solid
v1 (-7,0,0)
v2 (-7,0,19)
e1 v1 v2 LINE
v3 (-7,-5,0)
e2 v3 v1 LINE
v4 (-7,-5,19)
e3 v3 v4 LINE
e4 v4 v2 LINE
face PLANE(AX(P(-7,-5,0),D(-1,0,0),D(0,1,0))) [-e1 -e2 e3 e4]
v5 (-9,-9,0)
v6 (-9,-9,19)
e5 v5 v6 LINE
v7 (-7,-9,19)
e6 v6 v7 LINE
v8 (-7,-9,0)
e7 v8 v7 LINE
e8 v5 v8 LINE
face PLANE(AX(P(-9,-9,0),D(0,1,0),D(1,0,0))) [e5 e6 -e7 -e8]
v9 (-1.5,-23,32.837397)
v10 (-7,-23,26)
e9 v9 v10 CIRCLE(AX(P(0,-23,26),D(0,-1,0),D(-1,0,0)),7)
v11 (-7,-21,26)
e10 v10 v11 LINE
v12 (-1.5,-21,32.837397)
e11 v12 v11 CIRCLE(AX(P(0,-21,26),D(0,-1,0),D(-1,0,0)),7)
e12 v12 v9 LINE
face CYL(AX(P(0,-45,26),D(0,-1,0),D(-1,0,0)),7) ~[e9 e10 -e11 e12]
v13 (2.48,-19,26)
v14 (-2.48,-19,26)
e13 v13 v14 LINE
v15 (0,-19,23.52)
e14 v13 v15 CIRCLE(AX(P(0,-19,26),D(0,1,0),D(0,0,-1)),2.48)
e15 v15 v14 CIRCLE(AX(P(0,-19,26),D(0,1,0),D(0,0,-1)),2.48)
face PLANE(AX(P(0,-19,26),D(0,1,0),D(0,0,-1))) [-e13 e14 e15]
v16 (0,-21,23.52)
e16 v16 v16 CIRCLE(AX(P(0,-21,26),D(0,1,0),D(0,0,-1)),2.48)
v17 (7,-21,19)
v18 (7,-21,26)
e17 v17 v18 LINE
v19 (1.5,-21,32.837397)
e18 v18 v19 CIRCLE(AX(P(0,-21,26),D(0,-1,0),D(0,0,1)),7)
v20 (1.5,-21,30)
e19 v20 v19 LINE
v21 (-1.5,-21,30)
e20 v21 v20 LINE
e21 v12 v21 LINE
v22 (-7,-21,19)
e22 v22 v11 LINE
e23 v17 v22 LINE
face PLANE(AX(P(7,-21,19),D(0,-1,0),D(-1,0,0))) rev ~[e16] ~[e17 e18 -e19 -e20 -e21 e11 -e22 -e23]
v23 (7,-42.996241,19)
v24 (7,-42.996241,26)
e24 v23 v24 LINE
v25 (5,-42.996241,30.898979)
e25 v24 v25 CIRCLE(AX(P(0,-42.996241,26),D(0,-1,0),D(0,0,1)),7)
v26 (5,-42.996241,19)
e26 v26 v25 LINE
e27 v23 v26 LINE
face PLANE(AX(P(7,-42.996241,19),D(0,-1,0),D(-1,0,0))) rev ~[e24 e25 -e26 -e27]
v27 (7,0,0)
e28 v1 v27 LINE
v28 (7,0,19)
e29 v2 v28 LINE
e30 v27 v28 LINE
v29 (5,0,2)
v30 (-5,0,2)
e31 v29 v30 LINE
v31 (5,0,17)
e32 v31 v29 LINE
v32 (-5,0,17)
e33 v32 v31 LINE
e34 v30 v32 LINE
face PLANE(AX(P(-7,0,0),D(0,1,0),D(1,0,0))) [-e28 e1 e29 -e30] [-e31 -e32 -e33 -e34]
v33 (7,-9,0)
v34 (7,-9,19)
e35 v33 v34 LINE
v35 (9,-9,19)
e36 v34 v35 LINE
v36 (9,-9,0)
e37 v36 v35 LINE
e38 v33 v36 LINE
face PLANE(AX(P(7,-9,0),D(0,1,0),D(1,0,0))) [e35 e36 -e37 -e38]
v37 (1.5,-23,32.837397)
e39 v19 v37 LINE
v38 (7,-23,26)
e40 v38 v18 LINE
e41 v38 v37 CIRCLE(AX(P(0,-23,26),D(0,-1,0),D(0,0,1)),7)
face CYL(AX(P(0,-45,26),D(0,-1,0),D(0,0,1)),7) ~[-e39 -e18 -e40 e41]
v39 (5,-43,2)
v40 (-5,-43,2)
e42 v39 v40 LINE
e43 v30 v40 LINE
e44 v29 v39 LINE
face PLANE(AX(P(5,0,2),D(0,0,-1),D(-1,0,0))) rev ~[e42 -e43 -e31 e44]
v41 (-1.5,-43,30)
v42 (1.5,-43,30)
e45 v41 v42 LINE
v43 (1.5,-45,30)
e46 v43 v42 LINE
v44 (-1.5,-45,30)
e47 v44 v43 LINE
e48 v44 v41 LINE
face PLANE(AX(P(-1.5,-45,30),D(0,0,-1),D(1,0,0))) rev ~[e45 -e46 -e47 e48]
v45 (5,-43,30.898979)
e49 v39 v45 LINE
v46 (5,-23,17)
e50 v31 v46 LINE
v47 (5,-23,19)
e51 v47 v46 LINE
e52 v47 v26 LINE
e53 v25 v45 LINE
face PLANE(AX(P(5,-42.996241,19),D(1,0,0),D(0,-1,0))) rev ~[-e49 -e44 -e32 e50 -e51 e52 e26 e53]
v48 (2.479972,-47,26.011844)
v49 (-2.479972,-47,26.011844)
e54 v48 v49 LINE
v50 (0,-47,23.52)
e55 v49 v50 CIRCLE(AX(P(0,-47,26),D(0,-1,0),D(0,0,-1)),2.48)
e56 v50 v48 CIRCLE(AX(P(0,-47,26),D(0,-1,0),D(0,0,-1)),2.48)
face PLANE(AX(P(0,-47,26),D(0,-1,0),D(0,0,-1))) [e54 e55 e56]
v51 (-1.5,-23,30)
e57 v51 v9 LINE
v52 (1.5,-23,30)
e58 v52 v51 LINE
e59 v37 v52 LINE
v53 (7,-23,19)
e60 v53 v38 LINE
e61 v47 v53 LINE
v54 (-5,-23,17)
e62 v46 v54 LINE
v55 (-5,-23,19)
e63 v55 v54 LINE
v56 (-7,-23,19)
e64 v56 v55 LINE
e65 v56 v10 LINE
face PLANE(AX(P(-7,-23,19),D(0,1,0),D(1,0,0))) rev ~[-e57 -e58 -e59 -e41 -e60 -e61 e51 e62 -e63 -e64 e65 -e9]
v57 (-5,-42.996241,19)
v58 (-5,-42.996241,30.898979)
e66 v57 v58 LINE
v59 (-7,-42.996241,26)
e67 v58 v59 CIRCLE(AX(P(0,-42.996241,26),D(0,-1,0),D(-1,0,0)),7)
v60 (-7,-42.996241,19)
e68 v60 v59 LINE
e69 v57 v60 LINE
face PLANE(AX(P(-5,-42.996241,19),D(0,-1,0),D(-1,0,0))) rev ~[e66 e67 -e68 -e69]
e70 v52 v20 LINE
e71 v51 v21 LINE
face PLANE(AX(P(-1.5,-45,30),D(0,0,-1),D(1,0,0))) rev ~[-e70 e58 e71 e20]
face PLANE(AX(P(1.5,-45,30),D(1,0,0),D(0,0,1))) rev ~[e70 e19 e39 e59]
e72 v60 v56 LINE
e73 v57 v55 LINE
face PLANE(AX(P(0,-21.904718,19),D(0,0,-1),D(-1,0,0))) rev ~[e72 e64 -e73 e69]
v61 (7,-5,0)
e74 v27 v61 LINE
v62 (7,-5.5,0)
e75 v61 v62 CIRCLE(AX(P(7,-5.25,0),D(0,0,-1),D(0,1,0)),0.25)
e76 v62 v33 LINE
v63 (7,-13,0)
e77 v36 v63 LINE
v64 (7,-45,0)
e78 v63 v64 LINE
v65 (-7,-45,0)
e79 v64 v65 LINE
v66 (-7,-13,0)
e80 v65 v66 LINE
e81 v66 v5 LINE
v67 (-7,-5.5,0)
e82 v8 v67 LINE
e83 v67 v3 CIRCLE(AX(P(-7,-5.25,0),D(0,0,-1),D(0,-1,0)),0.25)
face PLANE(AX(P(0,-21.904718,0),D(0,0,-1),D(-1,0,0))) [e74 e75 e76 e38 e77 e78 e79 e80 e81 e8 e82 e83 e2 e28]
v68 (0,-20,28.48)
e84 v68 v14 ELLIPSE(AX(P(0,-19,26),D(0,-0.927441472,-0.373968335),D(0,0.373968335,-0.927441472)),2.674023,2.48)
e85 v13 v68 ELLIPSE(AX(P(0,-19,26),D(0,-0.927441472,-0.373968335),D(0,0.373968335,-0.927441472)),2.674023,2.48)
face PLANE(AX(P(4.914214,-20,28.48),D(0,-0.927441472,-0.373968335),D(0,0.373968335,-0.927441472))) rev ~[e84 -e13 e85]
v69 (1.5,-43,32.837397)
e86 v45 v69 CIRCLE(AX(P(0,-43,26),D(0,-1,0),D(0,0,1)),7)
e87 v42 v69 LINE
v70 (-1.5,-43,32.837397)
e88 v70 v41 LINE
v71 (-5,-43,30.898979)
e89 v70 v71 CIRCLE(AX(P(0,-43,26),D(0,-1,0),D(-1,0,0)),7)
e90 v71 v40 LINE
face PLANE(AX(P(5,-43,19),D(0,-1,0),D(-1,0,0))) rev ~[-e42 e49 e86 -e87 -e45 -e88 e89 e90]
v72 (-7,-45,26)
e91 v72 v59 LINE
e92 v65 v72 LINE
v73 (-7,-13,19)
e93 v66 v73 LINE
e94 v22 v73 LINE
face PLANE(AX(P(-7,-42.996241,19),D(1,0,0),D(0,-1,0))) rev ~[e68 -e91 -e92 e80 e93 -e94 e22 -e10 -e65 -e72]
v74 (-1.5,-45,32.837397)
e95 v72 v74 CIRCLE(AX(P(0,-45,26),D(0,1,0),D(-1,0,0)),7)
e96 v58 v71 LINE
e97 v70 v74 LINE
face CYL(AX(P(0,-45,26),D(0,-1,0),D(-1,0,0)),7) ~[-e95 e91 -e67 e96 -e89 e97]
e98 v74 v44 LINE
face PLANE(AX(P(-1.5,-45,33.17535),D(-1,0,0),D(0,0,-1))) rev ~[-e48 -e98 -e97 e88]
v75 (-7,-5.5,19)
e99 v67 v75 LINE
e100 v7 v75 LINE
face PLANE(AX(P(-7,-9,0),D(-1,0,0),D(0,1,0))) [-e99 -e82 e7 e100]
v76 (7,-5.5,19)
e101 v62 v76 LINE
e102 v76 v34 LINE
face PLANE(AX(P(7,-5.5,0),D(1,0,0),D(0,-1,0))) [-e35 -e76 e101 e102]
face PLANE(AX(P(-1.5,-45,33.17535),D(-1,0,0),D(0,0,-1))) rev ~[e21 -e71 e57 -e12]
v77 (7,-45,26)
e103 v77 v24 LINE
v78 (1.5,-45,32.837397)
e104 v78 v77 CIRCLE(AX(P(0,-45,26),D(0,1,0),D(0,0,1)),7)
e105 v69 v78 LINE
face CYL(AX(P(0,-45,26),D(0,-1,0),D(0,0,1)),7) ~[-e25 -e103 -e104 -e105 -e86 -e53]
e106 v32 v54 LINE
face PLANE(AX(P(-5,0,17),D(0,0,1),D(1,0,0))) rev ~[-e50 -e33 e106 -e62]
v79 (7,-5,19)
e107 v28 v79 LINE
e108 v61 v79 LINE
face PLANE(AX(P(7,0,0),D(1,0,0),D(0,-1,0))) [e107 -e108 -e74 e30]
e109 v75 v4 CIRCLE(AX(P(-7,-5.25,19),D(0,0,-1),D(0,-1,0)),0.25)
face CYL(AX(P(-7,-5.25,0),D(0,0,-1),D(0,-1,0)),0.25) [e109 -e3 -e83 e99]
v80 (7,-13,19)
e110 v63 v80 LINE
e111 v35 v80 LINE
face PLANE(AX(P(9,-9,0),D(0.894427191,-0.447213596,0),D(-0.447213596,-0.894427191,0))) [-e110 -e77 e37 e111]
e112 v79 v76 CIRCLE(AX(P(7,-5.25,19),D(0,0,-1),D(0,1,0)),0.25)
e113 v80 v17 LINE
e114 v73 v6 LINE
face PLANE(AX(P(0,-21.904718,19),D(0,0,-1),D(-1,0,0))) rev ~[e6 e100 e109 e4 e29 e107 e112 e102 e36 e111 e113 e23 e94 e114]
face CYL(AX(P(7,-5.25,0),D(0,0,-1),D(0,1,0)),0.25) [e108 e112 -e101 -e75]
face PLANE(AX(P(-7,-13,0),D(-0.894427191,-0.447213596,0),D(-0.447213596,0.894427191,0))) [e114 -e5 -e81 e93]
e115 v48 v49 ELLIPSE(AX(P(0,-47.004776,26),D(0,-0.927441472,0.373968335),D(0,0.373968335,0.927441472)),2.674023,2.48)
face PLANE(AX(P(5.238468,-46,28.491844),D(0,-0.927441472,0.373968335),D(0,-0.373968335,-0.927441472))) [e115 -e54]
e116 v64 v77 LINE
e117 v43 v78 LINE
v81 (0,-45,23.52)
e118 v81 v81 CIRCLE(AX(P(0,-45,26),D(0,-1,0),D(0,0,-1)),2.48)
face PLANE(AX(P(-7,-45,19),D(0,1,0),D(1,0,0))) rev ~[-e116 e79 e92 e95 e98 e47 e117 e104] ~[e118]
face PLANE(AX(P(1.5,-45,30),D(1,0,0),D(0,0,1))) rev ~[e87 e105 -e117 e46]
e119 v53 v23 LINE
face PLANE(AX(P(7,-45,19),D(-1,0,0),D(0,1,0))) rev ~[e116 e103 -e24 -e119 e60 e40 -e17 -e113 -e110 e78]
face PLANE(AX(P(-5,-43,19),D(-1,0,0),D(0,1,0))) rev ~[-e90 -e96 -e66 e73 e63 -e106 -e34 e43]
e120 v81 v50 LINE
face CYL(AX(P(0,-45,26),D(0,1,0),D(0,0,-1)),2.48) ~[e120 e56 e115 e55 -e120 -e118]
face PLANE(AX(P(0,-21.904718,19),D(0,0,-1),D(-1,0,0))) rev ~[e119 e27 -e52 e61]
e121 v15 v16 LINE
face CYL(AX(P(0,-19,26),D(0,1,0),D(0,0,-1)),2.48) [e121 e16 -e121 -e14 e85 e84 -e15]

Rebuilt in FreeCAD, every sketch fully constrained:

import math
import FreeCAD as App
import Part
import Sketcher

doc = App.newDocument("Part")
body = doc.addObject("PartDesign::Body", "Body")

# Sketch on XY plane
sketch1 = body.newObject("Sketcher::SketchObject", "Sketch")
sketch1.AttachmentSupport = (doc.getObject("XY_Plane"), [""])
sketch1.MapMode = "FlatFace"
sketch1.addGeometry([
    Part.LineSegment(App.Vector(7, -5, 0), App.Vector(7, 0, 0)),  # 0
    Part.LineSegment(App.Vector(7, 0, 0), App.Vector(-7, 0, 0)),  # 1
    Part.LineSegment(App.Vector(-7, 0, 0), App.Vector(-7, -5, 0)),  # 2
    Part.ArcOfCircle(Part.Circle(App.Vector(-7, -5.25, 0), App.Vector(0, 0, 1), 0.25), math.radians(90), math.radians(270)),  # 3
    Part.LineSegment(App.Vector(-7, -5.5, 0), App.Vector(-7, -9, 0)),  # 4
    Part.LineSegment(App.Vector(-7, -9, 0), App.Vector(-9, -9, 0)),  # 5
    Part.LineSegment(App.Vector(-9, -9, 0), App.Vector(-7, -13, 0)),  # 6
    Part.LineSegment(App.Vector(-7, -13, 0), App.Vector(-7, -45, 0)),  # 7
    Part.LineSegment(App.Vector(-7, -45, 0), App.Vector(7, -45, 0)),  # 8
    Part.LineSegment(App.Vector(7, -45, 0), App.Vector(7, -13, 0)),  # 9
    Part.LineSegment(App.Vector(7, -13, 0), App.Vector(9, -9, 0)),  # 10
    Part.LineSegment(App.Vector(9, -9, 0), App.Vector(7, -9, 0)),  # 11
    Part.LineSegment(App.Vector(7, -9, 0), App.Vector(7, -5.5, 0)),  # 12
    Part.ArcOfCircle(Part.Circle(App.Vector(7, -5.25, 0), App.Vector(0, 0, 1), 0.25), math.radians(-90), math.radians(90)),  # 13
], False)
sketch1.addConstraint([
    Sketcher.Constraint("Coincident", 0, 2, 1, 1),
    Sketcher.Constraint("Coincident", 1, 2, 2, 1),
    Sketcher.Constraint("Coincident", 2, 2, 3, 1),
    Sketcher.Constraint("Coincident", 3, 2, 4, 1),
    Sketcher.Constraint("Coincident", 4, 2, 5, 1),
    Sketcher.Constraint("Coincident", 5, 2, 6, 1),
    Sketcher.Constraint("Coincident", 6, 2, 7, 1),
    Sketcher.Constraint("Coincident", 7, 2, 8, 1),
    Sketcher.Constraint("Coincident", 8, 2, 9, 1),
    Sketcher.Constraint("Coincident", 9, 2, 10, 1),
    Sketcher.Constraint("Coincident", 10, 2, 11, 1),
    Sketcher.Constraint("Coincident", 11, 2, 12, 1),
    Sketcher.Constraint("Coincident", 12, 2, 13, 1),
    Sketcher.Constraint("Coincident", 13, 2, 0, 1),
    Sketcher.Constraint("Vertical", 0),
    Sketcher.Constraint("Horizontal", 1),
    Sketcher.Constraint("Vertical", 2),
    Sketcher.Constraint("Vertical", 4),
    Sketcher.Constraint("Horizontal", 5),
    Sketcher.Constraint("Vertical", 7),
    Sketcher.Constraint("Horizontal", 8),
    Sketcher.Constraint("Vertical", 9),
    Sketcher.Constraint("Horizontal", 11),
    Sketcher.Constraint("Vertical", 12),
    Sketcher.Constraint("Equal", 3, 13),
    Sketcher.Constraint("Symmetric", 0, 2, 1, 2, -1, 1),
    Sketcher.Constraint("Symmetric", 3, 3, 13, 3, -2),
    Sketcher.Constraint("Symmetric", 6, 2, 9, 2, -2),
    Sketcher.Constraint("Symmetric", 5, 2, 10, 2, -2),
    Sketcher.Constraint("Vertical", 13, 3, 0, 2),
    Sketcher.Constraint("Vertical", 2, 2, 3, 2),
    Sketcher.Constraint("Vertical", 4, 2, 6, 2),
    Sketcher.Constraint("Vertical", 9, 2, 11, 2),
    Sketcher.Constraint("DistanceX", 1, 2, 1, 1, 14.0),
    Sketcher.Constraint("DistanceX", 5, 2, 5, 1, 2.0),
    Sketcher.Constraint("DistanceY", 0, 1, 0, 2, 5.0),
    Sketcher.Constraint("DistanceY", 7, 2, 7, 1, 32.0),
    Sketcher.Constraint("Radius", 3, 0.25),
    Sketcher.Constraint("DistanceY", 4, 2, 4, 1, 3.5),
    Sketcher.Constraint("DistanceY", 6, 2, -1, 1, 13.0),
])
pad1 = body.newObject("PartDesign::Pad", "Pad")
pad1.Profile = sketch1
pad1.Length = 19

# Sketch on XZ plane
sketch2 = body.newObject("Sketcher::SketchObject", "Sketch001")
sketch2.AttachmentSupport = (doc.getObject("XZ_Plane"), [""])
sketch2.MapMode = "FlatFace"
sketch2.addGeometry([
    Part.LineSegment(App.Vector(5, 2, 0), App.Vector(-5, 2, 0)),
    Part.LineSegment(App.Vector(-5, 2, 0), App.Vector(-5, 17, 0)),
    Part.LineSegment(App.Vector(-5, 17, 0), App.Vector(5, 17, 0)),
    Part.LineSegment(App.Vector(5, 17, 0), App.Vector(5, 2, 0)),
], False)
sketch2.addConstraint([
    Sketcher.Constraint("Coincident", 0, 2, 1, 1),
    Sketcher.Constraint("Coincident", 1, 2, 2, 1),
    Sketcher.Constraint("Coincident", 2, 2, 3, 1),
    Sketcher.Constraint("Coincident", 3, 2, 0, 1),
    Sketcher.Constraint("Horizontal", 0),
    Sketcher.Constraint("Vertical", 1),
    Sketcher.Constraint("Horizontal", 2),
    Sketcher.Constraint("Vertical", 3),
    Sketcher.Constraint("DistanceX", 0, 2, 0, 1, 10.0),
    Sketcher.Constraint("DistanceY", 1, 1, 1, 2, 15.0),
    Sketcher.Constraint("DistanceX", 0, 2, -1, 1, 5.0),
    Sketcher.Constraint("DistanceY", -1, 1, 0, 2, 2.0),
])
pocket1 = body.newObject("PartDesign::Pocket", "Pocket")
pocket1.Profile = sketch2
pocket1.Length = 43
pocket1.Reversed = True

# Sketch on XY plane
sketch3 = body.newObject("Sketcher::SketchObject", "Sketch002")
sketch3.AttachmentSupport = (doc.getObject("XY_Plane"), [""])
sketch3.MapMode = "FlatFace"
sketch3.AttachmentOffset = App.Placement(App.Vector(0, 0, 19), App.Rotation())
sketch3.addGeometry([
    Part.LineSegment(App.Vector(5, -23, 0), App.Vector(-5, -23, 0)),
    Part.LineSegment(App.Vector(-5, -23, 0), App.Vector(-5, -43, 0)),
    Part.LineSegment(App.Vector(-5, -43, 0), App.Vector(5, -43, 0)),
    Part.LineSegment(App.Vector(5, -43, 0), App.Vector(5, -23, 0)),
], False)
sketch3.addConstraint([
    Sketcher.Constraint("Coincident", 0, 2, 1, 1),
    Sketcher.Constraint("Coincident", 1, 2, 2, 1),
    Sketcher.Constraint("Coincident", 2, 2, 3, 1),
    Sketcher.Constraint("Coincident", 3, 2, 0, 1),
    Sketcher.Constraint("Horizontal", 0),
    Sketcher.Constraint("Vertical", 1),
    Sketcher.Constraint("Horizontal", 2),
    Sketcher.Constraint("Vertical", 3),
    Sketcher.Constraint("DistanceX", 0, 2, 0, 1, 10.0),
    Sketcher.Constraint("DistanceY", 1, 2, 1, 1, 20.0),
    Sketcher.Constraint("DistanceX", 0, 2, -1, 1, 5.0),
    Sketcher.Constraint("DistanceY", 0, 2, -1, 1, 23.0),
])
pocket2 = body.newObject("PartDesign::Pocket", "Pocket001")
pocket2.Profile = sketch3
pocket2.Length = 2

# Sketch on XY plane
sketch4 = body.newObject("Sketcher::SketchObject", "Sketch003")
sketch4.AttachmentSupport = (doc.getObject("XY_Plane"), [""])
sketch4.MapMode = "FlatFace"
sketch4.AttachmentOffset = App.Placement(App.Vector(0, 0, 19), App.Rotation())
sketch4.addGeometry([
    Part.LineSegment(App.Vector(-7, -42.996241, 0), App.Vector(-7, -45, 0)),  # 0
    Part.LineSegment(App.Vector(-7, -45, 0), App.Vector(7, -45, 0)),  # 1
    Part.LineSegment(App.Vector(7, -45, 0), App.Vector(7, -42.996241, 0)),  # 2
    Part.LineSegment(App.Vector(7, -42.996241, 0), App.Vector(5, -42.996241, 0)),  # 3
    Part.LineSegment(App.Vector(5, -42.996241, 0), App.Vector(5, -43, 0)),  # 4
    Part.LineSegment(App.Vector(5, -43, 0), App.Vector(-5, -43, 0)),  # 5
    Part.LineSegment(App.Vector(-5, -43, 0), App.Vector(-5, -42.996241, 0)),  # 6
    Part.LineSegment(App.Vector(-5, -42.996241, 0), App.Vector(-7, -42.996241, 0)),  # 7
    Part.LineSegment(App.Vector(-7, -23, 0), App.Vector(7, -23, 0)),  # 8
    Part.LineSegment(App.Vector(7, -23, 0), App.Vector(7, -21, 0)),  # 9
    Part.LineSegment(App.Vector(7, -21, 0), App.Vector(-7, -21, 0)),  # 10
    Part.LineSegment(App.Vector(-7, -21, 0), App.Vector(-7, -23, 0)),  # 11
], False)
sketch4.addConstraint([
    Sketcher.Constraint("Coincident", 0, 2, 1, 1),
    Sketcher.Constraint("Coincident", 1, 2, 2, 1),
    Sketcher.Constraint("Coincident", 2, 2, 3, 1),
    Sketcher.Constraint("Coincident", 3, 2, 4, 1),
    Sketcher.Constraint("Coincident", 4, 2, 5, 1),
    Sketcher.Constraint("Coincident", 5, 2, 6, 1),
    Sketcher.Constraint("Coincident", 6, 2, 7, 1),
    Sketcher.Constraint("Coincident", 7, 2, 0, 1),
    Sketcher.Constraint("Coincident", 8, 2, 9, 1),
    Sketcher.Constraint("Coincident", 9, 2, 10, 1),
    Sketcher.Constraint("Coincident", 10, 2, 11, 1),
    Sketcher.Constraint("Coincident", 11, 2, 8, 1),
    Sketcher.Constraint("Vertical", 0),
    Sketcher.Constraint("Horizontal", 1),
    Sketcher.Constraint("Vertical", 2),
    Sketcher.Constraint("Horizontal", 3),
    Sketcher.Constraint("Vertical", 4),
    Sketcher.Constraint("Horizontal", 5),
    Sketcher.Constraint("Vertical", 6),
    Sketcher.Constraint("Horizontal", 7),
    Sketcher.Constraint("Horizontal", 8),
    Sketcher.Constraint("Vertical", 9),
    Sketcher.Constraint("Horizontal", 10),
    Sketcher.Constraint("Vertical", 11),
    Sketcher.Constraint("Symmetric", 3, 2, 6, 2, -2),
    Sketcher.Constraint("Vertical", 2, 2, 8, 2),
    Sketcher.Constraint("Vertical", 7, 2, 10, 2),
    Sketcher.Constraint("Equal", 3, 7),
    Sketcher.Constraint("Equal", 7, 9),
    Sketcher.Constraint("DistanceX", 1, 1, 1, 2, 14.0),
    Sketcher.Constraint("DistanceX", 3, 2, 3, 1, 2.0),
    Sketcher.Constraint("DistanceY", 0, 2, -1, 1, 45.0),
    Sketcher.Constraint("DistanceY", 4, 2, -1, 1, 43.0),
    Sketcher.Constraint("DistanceY", 8, 2, -1, 1, 23.0),
    Sketcher.Constraint("DistanceY", 0, 2, 0, 1, 2.003759),
])
pad2 = body.newObject("PartDesign::Pad", "Pad001")
pad2.Profile = sketch4
pad2.Length = 14

# Sketch on XZ plane
sketch5 = body.newObject("Sketcher::SketchObject", "Sketch004")
sketch5.AttachmentSupport = (doc.getObject("XZ_Plane"), [""])
sketch5.MapMode = "FlatFace"
sketch5.AttachmentOffset = App.Placement(App.Vector(0, 0, 45), App.Rotation())
sketch5.addGeometry(Part.Circle(App.Vector(0, 26, 0), App.Vector(0, 0, 1), 2.5), False)
sketch5.addConstraint([
    Sketcher.Constraint("PointOnObject", 0, 3, -2),
    Sketcher.Constraint("Diameter", 0, 4.96),
    Sketcher.Constraint("DistanceY", -1, 1, 0, 3, 26.0),
])
pad3 = body.newObject("PartDesign::Pad", "Pad002")
pad3.Profile = sketch5
pad3.Length = 2

# Sketch on XZ plane
sketch6 = body.newObject("Sketcher::SketchObject", "Sketch005")
sketch6.AttachmentSupport = (doc.getObject("XZ_Plane"), [""])
sketch6.MapMode = "FlatFace"
sketch6.AttachmentOffset = App.Placement(App.Vector(0, 0, 45), App.Rotation())
sketch6.addGeometry([
    Part.LineSegment(App.Vector(-7, 33, 0), App.Vector(-7, 26, 0)),  # 0
    Part.ArcOfCircle(Part.Circle(App.Vector(0, 26, 0), App.Vector(0, 0, 1), 7), math.radians(90), math.radians(180)),  # 1
    Part.LineSegment(App.Vector(0, 33, 0), App.Vector(-7, 33, 0)),  # 2
    Part.LineSegment(App.Vector(7, 33, 0), App.Vector(0, 33, 0)),  # 3
    Part.ArcOfCircle(Part.Circle(App.Vector(0, 26, 0), App.Vector(0, 0, 1), 7), math.radians(0), math.radians(90)),  # 4
    Part.LineSegment(App.Vector(7, 26, 0), App.Vector(7, 33, 0)),  # 5
], False)
sketch6.addConstraint([
    Sketcher.Constraint("Tangent", 0, 2, 1, 2),
    Sketcher.Constraint("Tangent", 1, 1, 2, 1),
    Sketcher.Constraint("Coincident", 2, 2, 0, 1),
    Sketcher.Constraint("Tangent", 3, 2, 4, 2),
    Sketcher.Constraint("Tangent", 4, 1, 5, 1),
    Sketcher.Constraint("Coincident", 5, 2, 3, 1),
    Sketcher.Constraint("Vertical", 0),
    Sketcher.Constraint("Horizontal", 2),
    Sketcher.Constraint("Horizontal", 3),
    Sketcher.Constraint("Vertical", 5),
    Sketcher.Constraint("Coincident", 4, 3, 1, 3),
    Sketcher.Constraint("Equal", 1, 4),
    Sketcher.Constraint("PointOnObject", 1, 3, -2),
    Sketcher.Constraint("Radius", 1, 7.0),
    Sketcher.Constraint("DistanceY", -1, 1, 1, 3, 26.0),
])
pocket3 = body.newObject("PartDesign::Pocket", "Pocket002")
pocket3.Profile = sketch6
pocket3.Length = 50

# Sketch on XZ plane
sketch7 = body.newObject("Sketcher::SketchObject", "Sketch006")
sketch7.AttachmentSupport = (doc.getObject("XZ_Plane"), [""])
sketch7.MapMode = "FlatFace"
sketch7.AttachmentOffset = App.Placement(App.Vector(0, 0, 19), App.Rotation())
sketch7.addGeometry(Part.Circle(App.Vector(0, 26, 0), App.Vector(0, 0, 1), 2.5), False)
sketch7.addConstraint([
    Sketcher.Constraint("PointOnObject", 0, 3, -2),
    Sketcher.Constraint("Diameter", 0, 4.96),
    Sketcher.Constraint("DistanceY", -1, 1, 0, 3, 26.0),
])
pad4 = body.newObject("PartDesign::Pad", "Pad003")
pad4.Profile = sketch7
pad4.Length = 2

# Sketch on XZ plane
sketch8 = body.newObject("Sketcher::SketchObject", "Sketch007")
sketch8.AttachmentSupport = (doc.getObject("XZ_Plane"), [""])
sketch8.MapMode = "FlatFace"
sketch8.AttachmentOffset = App.Placement(App.Vector(0, 0, 21), App.Rotation())
sketch8.addGeometry([
    Part.LineSegment(App.Vector(3.5, 26, 0), App.Vector(3.5, 28.5, 0)),
    Part.LineSegment(App.Vector(3.5, 28.5, 0), App.Vector(4.9, 28.5, 0)),
    Part.LineSegment(App.Vector(4.9, 28.5, 0), App.Vector(4.9, 26, 0)),
    Part.LineSegment(App.Vector(4.9, 26, 0), App.Vector(3.5, 26, 0)),
], False)
sketch8.addConstraint([
    Sketcher.Constraint("Coincident", 0, 2, 1, 1),
    Sketcher.Constraint("Coincident", 1, 2, 2, 1),
    Sketcher.Constraint("Coincident", 2, 2, 3, 1),
    Sketcher.Constraint("Coincident", 3, 2, 0, 1),
    Sketcher.Constraint("Vertical", 0),
    Sketcher.Constraint("Horizontal", 1),
    Sketcher.Constraint("Vertical", 2),
    Sketcher.Constraint("Horizontal", 3),
    Sketcher.Constraint("DistanceY", -1, 1, 2, 2, 26.0),
    Sketcher.Constraint("DistanceY", 0, 1, 0, 2, 2.48),
    Sketcher.Constraint("DistanceX", 1, 1, 1, 2, 1.371308),
    Sketcher.Constraint("DistanceX", -1, 1, 0, 2, 3.542906),
])
pad5 = body.newObject("PartDesign::Pad", "Pad004")
pad5.Profile = sketch8
pad5.Length = 2
pad5.Reversed = True

# Sketch on YZ plane
sketch9 = body.newObject("Sketcher::SketchObject", "Sketch008")
sketch9.AttachmentSupport = (doc.getObject("YZ_Plane"), [""])
sketch9.MapMode = "FlatFace"
sketch9.AttachmentOffset = App.Placement(App.Vector(0, 0, 4.914214), App.Rotation())
sketch9.addGeometry([
    Part.LineSegment(App.Vector(-19, 26, 0), App.Vector(-19, 28.5, 0)),
    Part.LineSegment(App.Vector(-19, 28.5, 0), App.Vector(-20, 28.5, 0)),
    Part.LineSegment(App.Vector(-20, 28.5, 0), App.Vector(-19, 26, 0)),
], False)
sketch9.addConstraint([
    Sketcher.Constraint("Coincident", 0, 2, 1, 1),
    Sketcher.Constraint("Coincident", 1, 2, 2, 1),
    Sketcher.Constraint("Coincident", 2, 2, 0, 1),
    Sketcher.Constraint("Vertical", 0),
    Sketcher.Constraint("Horizontal", 1),
    Sketcher.Constraint("DistanceX", 1, 2, 1, 1, 1.0),
    Sketcher.Constraint("DistanceX", 0, 2, -1, 1, 19.0),
    Sketcher.Constraint("DistanceY", -1, 1, 2, 2, 26.0),
    Sketcher.Constraint("DistanceY", 0, 1, 0, 2, 2.48),
])
pocket4 = body.newObject("PartDesign::Pocket", "Pocket003")
pocket4.Profile = sketch9
pocket4.Length = 10

# Sketch on YZ plane
sketch10 = body.newObject("Sketcher::SketchObject", "Sketch009")
sketch10.AttachmentSupport = (doc.getObject("YZ_Plane"), [""])
sketch10.MapMode = "FlatFace"
sketch10.AttachmentOffset = App.Placement(App.Vector(0, 0, 4.914214), App.Rotation())
sketch10.addGeometry([
    Part.LineSegment(App.Vector(-21, 26, 0), App.Vector(-19, 26, 0)),
    Part.LineSegment(App.Vector(-19, 26, 0), App.Vector(-20, 28.5, 0)),
    Part.LineSegment(App.Vector(-20, 28.5, 0), App.Vector(-21, 28.5, 0)),
    Part.LineSegment(App.Vector(-21, 28.5, 0), App.Vector(-21, 26, 0)),
], False)
sketch10.addConstraint([
    Sketcher.Constraint("Coincident", 0, 2, 1, 1),
    Sketcher.Constraint("Coincident", 1, 2, 2, 1),
    Sketcher.Constraint("Coincident", 2, 2, 3, 1),
    Sketcher.Constraint("Coincident", 3, 2, 0, 1),
    Sketcher.Constraint("Horizontal", 0),
    Sketcher.Constraint("Horizontal", 2),
    Sketcher.Constraint("Vertical", 3),
    Sketcher.Constraint("DistanceX", 0, 1, 0, 2, 2.0),
    Sketcher.Constraint("DistanceX", 2, 2, 2, 1, 1.0),
    Sketcher.Constraint("DistanceX", 0, 2, -1, 1, 19.0),
    Sketcher.Constraint("DistanceY", -1, 1, 0, 2, 26.0),
    Sketcher.Constraint("DistanceY", 3, 2, 3, 1, 2.48),
])
pocket5 = body.newObject("PartDesign::Pocket", "Pocket004")
pocket5.Profile = sketch10
pocket5.Length = 2

# Sketch on XZ plane
sketch11 = body.newObject("Sketcher::SketchObject", "Sketch010")
sketch11.AttachmentSupport = (doc.getObject("XZ_Plane"), [""])
sketch11.MapMode = "FlatFace"
sketch11.AttachmentOffset = App.Placement(App.Vector(0, 0, 47), App.Rotation())
sketch11.addGeometry([
    Part.LineSegment(App.Vector(5.2, 26, 0), App.Vector(5.2, 28.5, 0)),
    Part.LineSegment(App.Vector(5.2, 28.5, 0), App.Vector(3.2, 28.5, 0)),
    Part.LineSegment(App.Vector(3.2, 28.5, 0), App.Vector(3.2, 26, 0)),
    Part.LineSegment(App.Vector(3.2, 26, 0), App.Vector(5.2, 26, 0)),
], False)
sketch11.addConstraint([
    Sketcher.Constraint("Coincident", 0, 2, 1, 1),
    Sketcher.Constraint("Coincident", 1, 2, 2, 1),
    Sketcher.Constraint("Coincident", 2, 2, 3, 1),
    Sketcher.Constraint("Coincident", 3, 2, 0, 1),
    Sketcher.Constraint("Vertical", 0),
    Sketcher.Constraint("Horizontal", 1),
    Sketcher.Constraint("Vertical", 2),
    Sketcher.Constraint("Horizontal", 3),
    Sketcher.Constraint("DistanceY", 0, 1, 0, 2, 2.48),
    Sketcher.Constraint("DistanceX", 1, 2, 1, 1, 2.08463),
    Sketcher.Constraint("DistanceX", -1, 1, 0, 2, 5.238468),
    Sketcher.Constraint("DistanceY", -1, 1, 0, 2, 28.491844),
])
pad6 = body.newObject("PartDesign::Pad", "Pad005")
pad6.Profile = sketch11
pad6.Length = 2
pad6.Reversed = True

# Sketch on YZ plane
sketch12 = body.newObject("Sketcher::SketchObject", "Sketch011")
sketch12.AttachmentSupport = (doc.getObject("YZ_Plane"), [""])
sketch12.MapMode = "FlatFace"
sketch12.AttachmentOffset = App.Placement(App.Vector(0, 0, 5.238468), App.Rotation())
sketch12.addGeometry([
    Part.LineSegment(App.Vector(-46, 28.5, 0), App.Vector(-47, 28.5, 0)),
    Part.LineSegment(App.Vector(-47, 28.5, 0), App.Vector(-47, 26, 0)),
    Part.LineSegment(App.Vector(-47, 26, 0), App.Vector(-46, 28.5, 0)),
], False)
sketch12.addConstraint([
    Sketcher.Constraint("Coincident", 0, 2, 1, 1),
    Sketcher.Constraint("Coincident", 1, 2, 2, 1),
    Sketcher.Constraint("Coincident", 2, 2, 0, 1),
    Sketcher.Constraint("Horizontal", 0),
    Sketcher.Constraint("Vertical", 1),
    Sketcher.Constraint("DistanceX", 0, 2, 0, 1, 1.0),
    Sketcher.Constraint("DistanceX", 0, 2, -1, 1, 47.0),
    Sketcher.Constraint("DistanceY", 1, 2, 1, 1, 2.48),
    Sketcher.Constraint("DistanceY", -1, 1, 0, 2, 28.491844),
])
pocket6 = body.newObject("PartDesign::Pocket", "Pocket005")
pocket6.Profile = sketch12
pocket6.Length = 20

# Sketch on YZ plane
sketch13 = body.newObject("Sketcher::SketchObject", "Sketch012")
sketch13.AttachmentSupport = (doc.getObject("YZ_Plane"), [""])
sketch13.MapMode = "FlatFace"
sketch13.AttachmentOffset = App.Placement(App.Vector(0, 0, 5.238468), App.Rotation())
sketch13.addGeometry([
    Part.LineSegment(App.Vector(-46, 28.5, 0), App.Vector(-47, 26, 0)),
    Part.LineSegment(App.Vector(-47, 26, 0), App.Vector(-45, 26, 0)),
    Part.LineSegment(App.Vector(-45, 26, 0), App.Vector(-45, 28.5, 0)),
    Part.LineSegment(App.Vector(-45, 28.5, 0), App.Vector(-46, 28.5, 0)),
], False)
sketch13.addConstraint([
    Sketcher.Constraint("Coincident", 0, 2, 1, 1),
    Sketcher.Constraint("Coincident", 1, 2, 2, 1),
    Sketcher.Constraint("Coincident", 2, 2, 3, 1),
    Sketcher.Constraint("Coincident", 3, 2, 0, 1),
    Sketcher.Constraint("Vertical", 2),
    Sketcher.Constraint("Horizontal", 3),
    Sketcher.Constraint("DistanceX", 3, 2, 3, 1, 1.0),
    Sketcher.Constraint("DistanceX", 0, 2, -1, 1, 47.0),
    Sketcher.Constraint("DistanceX", 1, 2, -1, 1, 45.0),
    Sketcher.Constraint("DistanceY", -1, 1, 1, 2, 26.0),
    Sketcher.Constraint("DistanceY", 0, 2, 2, 2, 2.48),
    Sketcher.Constraint("DistanceY", 2, 1, 2, 2, 2.491844),
])
pocket7 = body.newObject("PartDesign::Pocket", "Pocket006")
pocket7.Profile = sketch13
pocket7.Length = 2.5

# Sketch on XZ plane
sketch14 = body.newObject("Sketcher::SketchObject", "Sketch013")
sketch14.AttachmentSupport = (doc.getObject("XZ_Plane"), [""])
sketch14.MapMode = "FlatFace"
sketch14.AttachmentOffset = App.Placement(App.Vector(0, 0, 45), App.Rotation())
sketch14.addGeometry([
    Part.LineSegment(App.Vector(-1.5, 30, 0), App.Vector(1.5, 30, 0)),
    Part.LineSegment(App.Vector(1.5, 30, 0), App.Vector(1.5, 33.2, 0)),
    Part.LineSegment(App.Vector(1.5, 33.2, 0), App.Vector(-1.5, 33.2, 0)),
    Part.LineSegment(App.Vector(-1.5, 33.2, 0), App.Vector(-1.5, 30, 0)),
], False)
sketch14.addConstraint([
    Sketcher.Constraint("Coincident", 0, 2, 1, 1),
    Sketcher.Constraint("Coincident", 1, 2, 2, 1),
    Sketcher.Constraint("Coincident", 2, 2, 3, 1),
    Sketcher.Constraint("Coincident", 3, 2, 0, 1),
    Sketcher.Constraint("Horizontal", 0),
    Sketcher.Constraint("Vertical", 1),
    Sketcher.Constraint("Horizontal", 2),
    Sketcher.Constraint("Vertical", 3),
    Sketcher.Constraint("DistanceX", 0, 1, 0, 2, 3.0),
    Sketcher.Constraint("DistanceY", -1, 1, 0, 2, 30.0),
    Sketcher.Constraint("DistanceX", -1, 1, 0, 2, 1.5),
    Sketcher.Constraint("DistanceY", 1, 1, 1, 2, 3.17535),
])
pocket8 = body.newObject("PartDesign::Pocket", "Pocket007")
pocket8.Profile = sketch14
pocket8.Length = 50

doc.recompute()
